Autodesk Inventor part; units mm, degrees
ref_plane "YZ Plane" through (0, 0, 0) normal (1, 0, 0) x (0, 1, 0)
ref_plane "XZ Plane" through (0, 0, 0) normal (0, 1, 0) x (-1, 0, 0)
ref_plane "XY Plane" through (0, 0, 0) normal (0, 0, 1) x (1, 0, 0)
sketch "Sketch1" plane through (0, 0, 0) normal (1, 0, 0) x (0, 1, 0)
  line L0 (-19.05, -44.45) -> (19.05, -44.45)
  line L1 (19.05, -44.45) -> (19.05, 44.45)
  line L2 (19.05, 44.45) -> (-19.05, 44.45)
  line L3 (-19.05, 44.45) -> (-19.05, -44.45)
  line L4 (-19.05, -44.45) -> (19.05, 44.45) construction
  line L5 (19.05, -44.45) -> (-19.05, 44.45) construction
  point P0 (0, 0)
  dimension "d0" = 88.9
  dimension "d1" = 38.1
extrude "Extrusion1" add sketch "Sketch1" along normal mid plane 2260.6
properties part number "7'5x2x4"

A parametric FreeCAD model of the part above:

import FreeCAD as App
import Part
import Sketcher
Q = App.Units.Quantity

doc = App.newDocument("Part")
body = doc.addObject("PartDesign::Body", "Body")

# Sketch on YZ plane
sketch1 = doc.addObject("Sketcher::SketchObject", "Sketch")
body.addObject(sketch1)
sketch1.AttachmentSupport = (doc.YZ_Plane, [""])
sketch1.MapMode = "FlatFace"
sketch1.addGeometry(Part.LineSegment(App.Vector(-19, 44, 0), App.Vector(-19, -44, 0)), False)
sketch1.addGeometry(Part.LineSegment(App.Vector(-19, -44, 0), App.Vector(19, -44, 0)), False)
sketch1.addGeometry(Part.LineSegment(App.Vector(19, -44, 0), App.Vector(19, 44, 0)), False)
sketch1.addGeometry(Part.LineSegment(App.Vector(19, 44, 0), App.Vector(-19, 44, 0)), False)
sketch1.addConstraint(Sketcher.Constraint("Coincident", 0, 2, 1, 1))
sketch1.addConstraint(Sketcher.Constraint("Coincident", 1, 2, 2, 1))
sketch1.addConstraint(Sketcher.Constraint("Coincident", 2, 2, 3, 1))
sketch1.addConstraint(Sketcher.Constraint("Coincident", 3, 2, 0, 1))
sketch1.addConstraint(Sketcher.Constraint("Vertical", 0))
sketch1.addConstraint(Sketcher.Constraint("Horizontal", 1))
sketch1.addConstraint(Sketcher.Constraint("Vertical", 2))
sketch1.addConstraint(Sketcher.Constraint("Horizontal", 3))
sketch1.addConstraint(Sketcher.Constraint("Symmetric", 0, 2, 2, 2, -1, 1))
sketch1.addConstraint(Sketcher.Constraint("DistanceX", 1, 1, 1, 2, Q("1.5 in")))
sketch1.addConstraint(Sketcher.Constraint("DistanceY", 0, 2, 0, 1, Q("3.5 in")))
pad1 = doc.addObject("PartDesign::Pad", "Pad")
body.addObject(pad1)
pad1.Profile = sketch1
pad1.Length = Q("89 in")
pad1.Midplane = True

doc.recompute()
